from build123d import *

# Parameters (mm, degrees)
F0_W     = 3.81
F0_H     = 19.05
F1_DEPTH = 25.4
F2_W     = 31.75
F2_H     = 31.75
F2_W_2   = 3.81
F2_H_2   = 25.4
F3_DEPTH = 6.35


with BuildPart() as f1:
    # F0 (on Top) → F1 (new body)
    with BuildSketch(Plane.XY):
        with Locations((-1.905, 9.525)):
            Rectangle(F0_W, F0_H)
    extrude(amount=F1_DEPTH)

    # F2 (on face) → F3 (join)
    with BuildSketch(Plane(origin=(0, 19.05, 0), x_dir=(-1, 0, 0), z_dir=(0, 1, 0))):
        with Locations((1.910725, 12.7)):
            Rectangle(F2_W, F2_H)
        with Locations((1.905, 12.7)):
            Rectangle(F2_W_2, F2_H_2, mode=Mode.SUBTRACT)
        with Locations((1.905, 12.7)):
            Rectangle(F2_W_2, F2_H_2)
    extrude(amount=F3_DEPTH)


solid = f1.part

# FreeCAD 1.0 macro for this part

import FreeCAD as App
import Part
import Sketcher
Q = App.Units.Quantity

doc = App.newDocument("Part")
body = doc.addObject("PartDesign::Body", "Body")

sketch1 = doc.addObject("Sketcher::SketchObject", "Sketch")
body.addObject(sketch1)
sketch1.AttachmentSupport = (doc.XY_Plane, [""])
sketch1.MapMode = "FlatFace"
sketch1.addGeometry([
    Part.LineSegment(App.Vector(-3.81, 19.05, 0), App.Vector(-3.81, 0, 0)),
    Part.LineSegment(App.Vector(-3.81, 0, 0), App.Vector(0, 0, 0)),
    Part.LineSegment(App.Vector(0, 0, 0), App.Vector(0, 19.05, 0)),
    Part.LineSegment(App.Vector(0, 19.05, 0), App.Vector(-3.81, 19.05, 0)),
], False)
sketch1.addConstraint([
    Sketcher.Constraint("Coincident", 0, 2, 1, 1),
    Sketcher.Constraint("Coincident", 1, 2, 2, 1),
    Sketcher.Constraint("Coincident", 2, 2, 3, 1),
    Sketcher.Constraint("Coincident", 3, 2, 0, 1),
    Sketcher.Constraint("Vertical", 0),
    Sketcher.Constraint("Horizontal", 1),
    Sketcher.Constraint("Vertical", 2),
    Sketcher.Constraint("Horizontal", 3),
    Sketcher.Constraint("Coincident", 1, 2, -1, 1),
    Sketcher.Constraint("DistanceX", 1, 1, 1, 2, Q("0.15 in")),
    Sketcher.Constraint("DistanceY", 0, 2, 0, 1, Q("0.75 in")),
])
pad1 = doc.addObject("PartDesign::Pad", "Pad")
body.addObject(pad1)
pad1.Profile = sketch1
pad1.Length = Q("1 in")

sketch2 = doc.addObject("Sketcher::SketchObject", "Sketch001")
body.addObject(sketch2)
sketch2.AttachmentSupport = (doc.XZ_Plane, [""])
sketch2.MapMode = "FlatFace"
sketch2.AttachmentOffset = App.Placement(App.Vector(0, 0, -0.75 * 25.4), App.Rotation())
sketch2.addGeometry([
    Part.LineSegment(App.Vector(13.964275, 28.575, 0), App.Vector(13.964275, -3.175, 0)),
    Part.LineSegment(App.Vector(13.964275, -3.175, 0), App.Vector(-17.785725, -3.175, 0)),
    Part.LineSegment(App.Vector(-17.785725, -3.175, 0), App.Vector(-17.785725, 28.575, 0)),
    Part.LineSegment(App.Vector(-17.785725, 28.575, 0), App.Vector(13.964275, 28.575, 0)),
], False)
sketch2.addConstraint([
    Sketcher.Constraint("Coincident", 0, 2, 1, 1),
    Sketcher.Constraint("Coincident", 1, 2, 2, 1),
    Sketcher.Constraint("Coincident", 2, 2, 3, 1),
    Sketcher.Constraint("Coincident", 3, 2, 0, 1),
    Sketcher.Constraint("Vertical", 0),
    Sketcher.Constraint("Horizontal", 1),
    Sketcher.Constraint("Vertical", 2),
    Sketcher.Constraint("Horizontal", 3),
    Sketcher.Constraint("Equal", 3, 0),
    Sketcher.Constraint("DistanceX", 1, 2, 1, 1, Q("1.25 in")),
    Sketcher.Constraint("DistanceY", 0, 2, -1, 1, Q("0.125 in")),
    Sketcher.Constraint("DistanceX", -1, 1, 0, 2, Q("13.964275 mm")),
])
pad2 = doc.addObject("PartDesign::Pad", "Pad001")
body.addObject(pad2)
pad2.Profile = sketch2
pad2.Length = Q("0.25 in")
pad2.Reversed = True

doc.recompute()
